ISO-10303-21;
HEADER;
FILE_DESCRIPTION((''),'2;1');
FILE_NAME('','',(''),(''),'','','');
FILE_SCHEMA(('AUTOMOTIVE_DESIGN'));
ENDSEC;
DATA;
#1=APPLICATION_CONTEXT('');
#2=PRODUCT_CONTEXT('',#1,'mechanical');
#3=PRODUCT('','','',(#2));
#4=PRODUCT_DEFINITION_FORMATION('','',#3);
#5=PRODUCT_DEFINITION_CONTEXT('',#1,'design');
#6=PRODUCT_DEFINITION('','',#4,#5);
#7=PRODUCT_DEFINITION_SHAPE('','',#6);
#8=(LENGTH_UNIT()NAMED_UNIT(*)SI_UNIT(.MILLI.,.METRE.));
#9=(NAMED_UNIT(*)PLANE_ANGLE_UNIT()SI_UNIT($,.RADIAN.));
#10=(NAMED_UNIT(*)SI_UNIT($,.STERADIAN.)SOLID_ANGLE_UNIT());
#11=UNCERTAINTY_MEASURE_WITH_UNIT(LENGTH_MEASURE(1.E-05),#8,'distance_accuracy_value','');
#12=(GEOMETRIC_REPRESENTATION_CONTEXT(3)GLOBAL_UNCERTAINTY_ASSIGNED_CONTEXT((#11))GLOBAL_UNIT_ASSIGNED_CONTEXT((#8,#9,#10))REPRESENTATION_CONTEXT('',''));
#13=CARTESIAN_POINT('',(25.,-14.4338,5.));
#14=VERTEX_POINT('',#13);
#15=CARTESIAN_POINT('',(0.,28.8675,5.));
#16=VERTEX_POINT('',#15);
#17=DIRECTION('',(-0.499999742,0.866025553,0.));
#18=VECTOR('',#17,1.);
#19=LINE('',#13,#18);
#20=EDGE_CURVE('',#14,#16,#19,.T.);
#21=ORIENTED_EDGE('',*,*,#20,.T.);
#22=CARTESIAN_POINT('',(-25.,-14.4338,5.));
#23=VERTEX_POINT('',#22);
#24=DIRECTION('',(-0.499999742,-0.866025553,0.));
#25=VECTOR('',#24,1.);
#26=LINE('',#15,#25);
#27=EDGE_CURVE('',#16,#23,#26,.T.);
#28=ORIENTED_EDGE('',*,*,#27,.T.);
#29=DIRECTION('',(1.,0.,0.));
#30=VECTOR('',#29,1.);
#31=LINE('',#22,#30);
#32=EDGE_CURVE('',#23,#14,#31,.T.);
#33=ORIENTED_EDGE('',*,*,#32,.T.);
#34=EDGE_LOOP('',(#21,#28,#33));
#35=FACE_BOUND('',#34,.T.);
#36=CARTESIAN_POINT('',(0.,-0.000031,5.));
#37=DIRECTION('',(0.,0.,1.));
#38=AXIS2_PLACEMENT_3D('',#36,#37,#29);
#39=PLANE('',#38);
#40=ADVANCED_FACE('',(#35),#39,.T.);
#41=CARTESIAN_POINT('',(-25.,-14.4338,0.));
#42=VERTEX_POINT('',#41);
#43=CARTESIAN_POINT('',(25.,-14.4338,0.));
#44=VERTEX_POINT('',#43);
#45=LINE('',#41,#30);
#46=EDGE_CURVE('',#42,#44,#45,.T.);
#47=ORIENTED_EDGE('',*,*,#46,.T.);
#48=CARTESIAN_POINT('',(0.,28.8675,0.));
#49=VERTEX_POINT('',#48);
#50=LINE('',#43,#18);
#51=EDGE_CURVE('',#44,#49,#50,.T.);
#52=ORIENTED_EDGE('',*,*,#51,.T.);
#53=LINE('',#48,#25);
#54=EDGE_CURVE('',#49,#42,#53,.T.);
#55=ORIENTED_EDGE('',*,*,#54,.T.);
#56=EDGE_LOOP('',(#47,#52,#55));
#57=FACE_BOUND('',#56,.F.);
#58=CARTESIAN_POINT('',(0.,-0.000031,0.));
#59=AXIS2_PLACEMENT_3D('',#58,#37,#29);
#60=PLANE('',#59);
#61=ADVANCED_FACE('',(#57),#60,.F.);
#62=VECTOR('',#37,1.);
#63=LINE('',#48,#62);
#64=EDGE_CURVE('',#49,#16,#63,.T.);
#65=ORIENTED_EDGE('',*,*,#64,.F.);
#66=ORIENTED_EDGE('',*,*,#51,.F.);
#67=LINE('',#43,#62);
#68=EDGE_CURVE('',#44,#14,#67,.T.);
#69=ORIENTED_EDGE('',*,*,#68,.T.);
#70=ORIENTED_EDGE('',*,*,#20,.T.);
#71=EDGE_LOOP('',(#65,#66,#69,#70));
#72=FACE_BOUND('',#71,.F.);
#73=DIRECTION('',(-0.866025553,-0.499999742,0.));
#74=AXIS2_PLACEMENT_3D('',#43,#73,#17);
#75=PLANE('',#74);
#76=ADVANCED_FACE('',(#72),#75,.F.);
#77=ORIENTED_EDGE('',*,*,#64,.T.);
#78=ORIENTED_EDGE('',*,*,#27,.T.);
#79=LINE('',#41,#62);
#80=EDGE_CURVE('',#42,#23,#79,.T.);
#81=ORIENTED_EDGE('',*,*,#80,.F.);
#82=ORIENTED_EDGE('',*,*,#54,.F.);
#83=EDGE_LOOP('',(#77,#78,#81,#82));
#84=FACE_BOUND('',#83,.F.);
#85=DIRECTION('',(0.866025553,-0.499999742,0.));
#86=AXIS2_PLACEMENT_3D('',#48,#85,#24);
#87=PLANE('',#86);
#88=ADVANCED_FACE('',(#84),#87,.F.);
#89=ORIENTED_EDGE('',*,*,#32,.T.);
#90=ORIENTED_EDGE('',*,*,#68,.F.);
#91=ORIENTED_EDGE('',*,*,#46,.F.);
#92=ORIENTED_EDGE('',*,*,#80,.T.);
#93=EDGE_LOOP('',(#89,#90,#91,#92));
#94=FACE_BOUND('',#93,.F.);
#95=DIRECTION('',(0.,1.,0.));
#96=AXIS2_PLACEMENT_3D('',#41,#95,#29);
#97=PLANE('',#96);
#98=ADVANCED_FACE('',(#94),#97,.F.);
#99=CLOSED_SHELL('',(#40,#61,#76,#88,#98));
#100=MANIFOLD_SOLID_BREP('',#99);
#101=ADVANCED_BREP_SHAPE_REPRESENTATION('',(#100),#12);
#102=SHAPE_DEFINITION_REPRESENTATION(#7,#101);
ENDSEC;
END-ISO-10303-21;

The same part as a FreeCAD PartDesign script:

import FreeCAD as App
import Part
import Sketcher

V = App.Vector
Q = App.Units.Quantity

doc = App.newDocument("Part")
body = doc.addObject("PartDesign::Body", "Body")

# Sketch on XY plane
sketch1 = doc.addObject("Sketcher::SketchObject", "Sketch")
body.addObject(sketch1)
sketch1.AttachmentSupport = (doc.XY_Plane, [""])
sketch1.MapMode = "FlatFace"
sketch1.addGeometry([
    Part.LineSegment(V(25, -14, 0), V(0, 29, 0)),
    Part.LineSegment(V(0, 29, 0), V(-25, -14, 0)),
    Part.LineSegment(V(-25, -14, 0), V(25, -14, 0)),
], False)
sketch1.addConstraint([
    Sketcher.Constraint("Coincident", 0, 2, 1, 1),
    Sketcher.Constraint("Coincident", 1, 2, 2, 1),
    Sketcher.Constraint("Coincident", 2, 2, 0, 1),
    Sketcher.Constraint("Horizontal", 2),
    Sketcher.Constraint("PointOnObject", 0, 2, -2),
    Sketcher.Constraint("Equal", 0, 1),
    Sketcher.Constraint("DistanceX", 2, 1, 2, 2, 50.0),
    Sketcher.Constraint("Angle", 0, Q("120 deg")),
    Sketcher.Constraint("DistanceY", -1, 1, 0, 2, 28.8675),
])
pad1 = doc.addObject("PartDesign::Pad", "Pad")
body.addObject(pad1)
pad1.Profile = sketch1
pad1.Length = 5

doc.recompute()
